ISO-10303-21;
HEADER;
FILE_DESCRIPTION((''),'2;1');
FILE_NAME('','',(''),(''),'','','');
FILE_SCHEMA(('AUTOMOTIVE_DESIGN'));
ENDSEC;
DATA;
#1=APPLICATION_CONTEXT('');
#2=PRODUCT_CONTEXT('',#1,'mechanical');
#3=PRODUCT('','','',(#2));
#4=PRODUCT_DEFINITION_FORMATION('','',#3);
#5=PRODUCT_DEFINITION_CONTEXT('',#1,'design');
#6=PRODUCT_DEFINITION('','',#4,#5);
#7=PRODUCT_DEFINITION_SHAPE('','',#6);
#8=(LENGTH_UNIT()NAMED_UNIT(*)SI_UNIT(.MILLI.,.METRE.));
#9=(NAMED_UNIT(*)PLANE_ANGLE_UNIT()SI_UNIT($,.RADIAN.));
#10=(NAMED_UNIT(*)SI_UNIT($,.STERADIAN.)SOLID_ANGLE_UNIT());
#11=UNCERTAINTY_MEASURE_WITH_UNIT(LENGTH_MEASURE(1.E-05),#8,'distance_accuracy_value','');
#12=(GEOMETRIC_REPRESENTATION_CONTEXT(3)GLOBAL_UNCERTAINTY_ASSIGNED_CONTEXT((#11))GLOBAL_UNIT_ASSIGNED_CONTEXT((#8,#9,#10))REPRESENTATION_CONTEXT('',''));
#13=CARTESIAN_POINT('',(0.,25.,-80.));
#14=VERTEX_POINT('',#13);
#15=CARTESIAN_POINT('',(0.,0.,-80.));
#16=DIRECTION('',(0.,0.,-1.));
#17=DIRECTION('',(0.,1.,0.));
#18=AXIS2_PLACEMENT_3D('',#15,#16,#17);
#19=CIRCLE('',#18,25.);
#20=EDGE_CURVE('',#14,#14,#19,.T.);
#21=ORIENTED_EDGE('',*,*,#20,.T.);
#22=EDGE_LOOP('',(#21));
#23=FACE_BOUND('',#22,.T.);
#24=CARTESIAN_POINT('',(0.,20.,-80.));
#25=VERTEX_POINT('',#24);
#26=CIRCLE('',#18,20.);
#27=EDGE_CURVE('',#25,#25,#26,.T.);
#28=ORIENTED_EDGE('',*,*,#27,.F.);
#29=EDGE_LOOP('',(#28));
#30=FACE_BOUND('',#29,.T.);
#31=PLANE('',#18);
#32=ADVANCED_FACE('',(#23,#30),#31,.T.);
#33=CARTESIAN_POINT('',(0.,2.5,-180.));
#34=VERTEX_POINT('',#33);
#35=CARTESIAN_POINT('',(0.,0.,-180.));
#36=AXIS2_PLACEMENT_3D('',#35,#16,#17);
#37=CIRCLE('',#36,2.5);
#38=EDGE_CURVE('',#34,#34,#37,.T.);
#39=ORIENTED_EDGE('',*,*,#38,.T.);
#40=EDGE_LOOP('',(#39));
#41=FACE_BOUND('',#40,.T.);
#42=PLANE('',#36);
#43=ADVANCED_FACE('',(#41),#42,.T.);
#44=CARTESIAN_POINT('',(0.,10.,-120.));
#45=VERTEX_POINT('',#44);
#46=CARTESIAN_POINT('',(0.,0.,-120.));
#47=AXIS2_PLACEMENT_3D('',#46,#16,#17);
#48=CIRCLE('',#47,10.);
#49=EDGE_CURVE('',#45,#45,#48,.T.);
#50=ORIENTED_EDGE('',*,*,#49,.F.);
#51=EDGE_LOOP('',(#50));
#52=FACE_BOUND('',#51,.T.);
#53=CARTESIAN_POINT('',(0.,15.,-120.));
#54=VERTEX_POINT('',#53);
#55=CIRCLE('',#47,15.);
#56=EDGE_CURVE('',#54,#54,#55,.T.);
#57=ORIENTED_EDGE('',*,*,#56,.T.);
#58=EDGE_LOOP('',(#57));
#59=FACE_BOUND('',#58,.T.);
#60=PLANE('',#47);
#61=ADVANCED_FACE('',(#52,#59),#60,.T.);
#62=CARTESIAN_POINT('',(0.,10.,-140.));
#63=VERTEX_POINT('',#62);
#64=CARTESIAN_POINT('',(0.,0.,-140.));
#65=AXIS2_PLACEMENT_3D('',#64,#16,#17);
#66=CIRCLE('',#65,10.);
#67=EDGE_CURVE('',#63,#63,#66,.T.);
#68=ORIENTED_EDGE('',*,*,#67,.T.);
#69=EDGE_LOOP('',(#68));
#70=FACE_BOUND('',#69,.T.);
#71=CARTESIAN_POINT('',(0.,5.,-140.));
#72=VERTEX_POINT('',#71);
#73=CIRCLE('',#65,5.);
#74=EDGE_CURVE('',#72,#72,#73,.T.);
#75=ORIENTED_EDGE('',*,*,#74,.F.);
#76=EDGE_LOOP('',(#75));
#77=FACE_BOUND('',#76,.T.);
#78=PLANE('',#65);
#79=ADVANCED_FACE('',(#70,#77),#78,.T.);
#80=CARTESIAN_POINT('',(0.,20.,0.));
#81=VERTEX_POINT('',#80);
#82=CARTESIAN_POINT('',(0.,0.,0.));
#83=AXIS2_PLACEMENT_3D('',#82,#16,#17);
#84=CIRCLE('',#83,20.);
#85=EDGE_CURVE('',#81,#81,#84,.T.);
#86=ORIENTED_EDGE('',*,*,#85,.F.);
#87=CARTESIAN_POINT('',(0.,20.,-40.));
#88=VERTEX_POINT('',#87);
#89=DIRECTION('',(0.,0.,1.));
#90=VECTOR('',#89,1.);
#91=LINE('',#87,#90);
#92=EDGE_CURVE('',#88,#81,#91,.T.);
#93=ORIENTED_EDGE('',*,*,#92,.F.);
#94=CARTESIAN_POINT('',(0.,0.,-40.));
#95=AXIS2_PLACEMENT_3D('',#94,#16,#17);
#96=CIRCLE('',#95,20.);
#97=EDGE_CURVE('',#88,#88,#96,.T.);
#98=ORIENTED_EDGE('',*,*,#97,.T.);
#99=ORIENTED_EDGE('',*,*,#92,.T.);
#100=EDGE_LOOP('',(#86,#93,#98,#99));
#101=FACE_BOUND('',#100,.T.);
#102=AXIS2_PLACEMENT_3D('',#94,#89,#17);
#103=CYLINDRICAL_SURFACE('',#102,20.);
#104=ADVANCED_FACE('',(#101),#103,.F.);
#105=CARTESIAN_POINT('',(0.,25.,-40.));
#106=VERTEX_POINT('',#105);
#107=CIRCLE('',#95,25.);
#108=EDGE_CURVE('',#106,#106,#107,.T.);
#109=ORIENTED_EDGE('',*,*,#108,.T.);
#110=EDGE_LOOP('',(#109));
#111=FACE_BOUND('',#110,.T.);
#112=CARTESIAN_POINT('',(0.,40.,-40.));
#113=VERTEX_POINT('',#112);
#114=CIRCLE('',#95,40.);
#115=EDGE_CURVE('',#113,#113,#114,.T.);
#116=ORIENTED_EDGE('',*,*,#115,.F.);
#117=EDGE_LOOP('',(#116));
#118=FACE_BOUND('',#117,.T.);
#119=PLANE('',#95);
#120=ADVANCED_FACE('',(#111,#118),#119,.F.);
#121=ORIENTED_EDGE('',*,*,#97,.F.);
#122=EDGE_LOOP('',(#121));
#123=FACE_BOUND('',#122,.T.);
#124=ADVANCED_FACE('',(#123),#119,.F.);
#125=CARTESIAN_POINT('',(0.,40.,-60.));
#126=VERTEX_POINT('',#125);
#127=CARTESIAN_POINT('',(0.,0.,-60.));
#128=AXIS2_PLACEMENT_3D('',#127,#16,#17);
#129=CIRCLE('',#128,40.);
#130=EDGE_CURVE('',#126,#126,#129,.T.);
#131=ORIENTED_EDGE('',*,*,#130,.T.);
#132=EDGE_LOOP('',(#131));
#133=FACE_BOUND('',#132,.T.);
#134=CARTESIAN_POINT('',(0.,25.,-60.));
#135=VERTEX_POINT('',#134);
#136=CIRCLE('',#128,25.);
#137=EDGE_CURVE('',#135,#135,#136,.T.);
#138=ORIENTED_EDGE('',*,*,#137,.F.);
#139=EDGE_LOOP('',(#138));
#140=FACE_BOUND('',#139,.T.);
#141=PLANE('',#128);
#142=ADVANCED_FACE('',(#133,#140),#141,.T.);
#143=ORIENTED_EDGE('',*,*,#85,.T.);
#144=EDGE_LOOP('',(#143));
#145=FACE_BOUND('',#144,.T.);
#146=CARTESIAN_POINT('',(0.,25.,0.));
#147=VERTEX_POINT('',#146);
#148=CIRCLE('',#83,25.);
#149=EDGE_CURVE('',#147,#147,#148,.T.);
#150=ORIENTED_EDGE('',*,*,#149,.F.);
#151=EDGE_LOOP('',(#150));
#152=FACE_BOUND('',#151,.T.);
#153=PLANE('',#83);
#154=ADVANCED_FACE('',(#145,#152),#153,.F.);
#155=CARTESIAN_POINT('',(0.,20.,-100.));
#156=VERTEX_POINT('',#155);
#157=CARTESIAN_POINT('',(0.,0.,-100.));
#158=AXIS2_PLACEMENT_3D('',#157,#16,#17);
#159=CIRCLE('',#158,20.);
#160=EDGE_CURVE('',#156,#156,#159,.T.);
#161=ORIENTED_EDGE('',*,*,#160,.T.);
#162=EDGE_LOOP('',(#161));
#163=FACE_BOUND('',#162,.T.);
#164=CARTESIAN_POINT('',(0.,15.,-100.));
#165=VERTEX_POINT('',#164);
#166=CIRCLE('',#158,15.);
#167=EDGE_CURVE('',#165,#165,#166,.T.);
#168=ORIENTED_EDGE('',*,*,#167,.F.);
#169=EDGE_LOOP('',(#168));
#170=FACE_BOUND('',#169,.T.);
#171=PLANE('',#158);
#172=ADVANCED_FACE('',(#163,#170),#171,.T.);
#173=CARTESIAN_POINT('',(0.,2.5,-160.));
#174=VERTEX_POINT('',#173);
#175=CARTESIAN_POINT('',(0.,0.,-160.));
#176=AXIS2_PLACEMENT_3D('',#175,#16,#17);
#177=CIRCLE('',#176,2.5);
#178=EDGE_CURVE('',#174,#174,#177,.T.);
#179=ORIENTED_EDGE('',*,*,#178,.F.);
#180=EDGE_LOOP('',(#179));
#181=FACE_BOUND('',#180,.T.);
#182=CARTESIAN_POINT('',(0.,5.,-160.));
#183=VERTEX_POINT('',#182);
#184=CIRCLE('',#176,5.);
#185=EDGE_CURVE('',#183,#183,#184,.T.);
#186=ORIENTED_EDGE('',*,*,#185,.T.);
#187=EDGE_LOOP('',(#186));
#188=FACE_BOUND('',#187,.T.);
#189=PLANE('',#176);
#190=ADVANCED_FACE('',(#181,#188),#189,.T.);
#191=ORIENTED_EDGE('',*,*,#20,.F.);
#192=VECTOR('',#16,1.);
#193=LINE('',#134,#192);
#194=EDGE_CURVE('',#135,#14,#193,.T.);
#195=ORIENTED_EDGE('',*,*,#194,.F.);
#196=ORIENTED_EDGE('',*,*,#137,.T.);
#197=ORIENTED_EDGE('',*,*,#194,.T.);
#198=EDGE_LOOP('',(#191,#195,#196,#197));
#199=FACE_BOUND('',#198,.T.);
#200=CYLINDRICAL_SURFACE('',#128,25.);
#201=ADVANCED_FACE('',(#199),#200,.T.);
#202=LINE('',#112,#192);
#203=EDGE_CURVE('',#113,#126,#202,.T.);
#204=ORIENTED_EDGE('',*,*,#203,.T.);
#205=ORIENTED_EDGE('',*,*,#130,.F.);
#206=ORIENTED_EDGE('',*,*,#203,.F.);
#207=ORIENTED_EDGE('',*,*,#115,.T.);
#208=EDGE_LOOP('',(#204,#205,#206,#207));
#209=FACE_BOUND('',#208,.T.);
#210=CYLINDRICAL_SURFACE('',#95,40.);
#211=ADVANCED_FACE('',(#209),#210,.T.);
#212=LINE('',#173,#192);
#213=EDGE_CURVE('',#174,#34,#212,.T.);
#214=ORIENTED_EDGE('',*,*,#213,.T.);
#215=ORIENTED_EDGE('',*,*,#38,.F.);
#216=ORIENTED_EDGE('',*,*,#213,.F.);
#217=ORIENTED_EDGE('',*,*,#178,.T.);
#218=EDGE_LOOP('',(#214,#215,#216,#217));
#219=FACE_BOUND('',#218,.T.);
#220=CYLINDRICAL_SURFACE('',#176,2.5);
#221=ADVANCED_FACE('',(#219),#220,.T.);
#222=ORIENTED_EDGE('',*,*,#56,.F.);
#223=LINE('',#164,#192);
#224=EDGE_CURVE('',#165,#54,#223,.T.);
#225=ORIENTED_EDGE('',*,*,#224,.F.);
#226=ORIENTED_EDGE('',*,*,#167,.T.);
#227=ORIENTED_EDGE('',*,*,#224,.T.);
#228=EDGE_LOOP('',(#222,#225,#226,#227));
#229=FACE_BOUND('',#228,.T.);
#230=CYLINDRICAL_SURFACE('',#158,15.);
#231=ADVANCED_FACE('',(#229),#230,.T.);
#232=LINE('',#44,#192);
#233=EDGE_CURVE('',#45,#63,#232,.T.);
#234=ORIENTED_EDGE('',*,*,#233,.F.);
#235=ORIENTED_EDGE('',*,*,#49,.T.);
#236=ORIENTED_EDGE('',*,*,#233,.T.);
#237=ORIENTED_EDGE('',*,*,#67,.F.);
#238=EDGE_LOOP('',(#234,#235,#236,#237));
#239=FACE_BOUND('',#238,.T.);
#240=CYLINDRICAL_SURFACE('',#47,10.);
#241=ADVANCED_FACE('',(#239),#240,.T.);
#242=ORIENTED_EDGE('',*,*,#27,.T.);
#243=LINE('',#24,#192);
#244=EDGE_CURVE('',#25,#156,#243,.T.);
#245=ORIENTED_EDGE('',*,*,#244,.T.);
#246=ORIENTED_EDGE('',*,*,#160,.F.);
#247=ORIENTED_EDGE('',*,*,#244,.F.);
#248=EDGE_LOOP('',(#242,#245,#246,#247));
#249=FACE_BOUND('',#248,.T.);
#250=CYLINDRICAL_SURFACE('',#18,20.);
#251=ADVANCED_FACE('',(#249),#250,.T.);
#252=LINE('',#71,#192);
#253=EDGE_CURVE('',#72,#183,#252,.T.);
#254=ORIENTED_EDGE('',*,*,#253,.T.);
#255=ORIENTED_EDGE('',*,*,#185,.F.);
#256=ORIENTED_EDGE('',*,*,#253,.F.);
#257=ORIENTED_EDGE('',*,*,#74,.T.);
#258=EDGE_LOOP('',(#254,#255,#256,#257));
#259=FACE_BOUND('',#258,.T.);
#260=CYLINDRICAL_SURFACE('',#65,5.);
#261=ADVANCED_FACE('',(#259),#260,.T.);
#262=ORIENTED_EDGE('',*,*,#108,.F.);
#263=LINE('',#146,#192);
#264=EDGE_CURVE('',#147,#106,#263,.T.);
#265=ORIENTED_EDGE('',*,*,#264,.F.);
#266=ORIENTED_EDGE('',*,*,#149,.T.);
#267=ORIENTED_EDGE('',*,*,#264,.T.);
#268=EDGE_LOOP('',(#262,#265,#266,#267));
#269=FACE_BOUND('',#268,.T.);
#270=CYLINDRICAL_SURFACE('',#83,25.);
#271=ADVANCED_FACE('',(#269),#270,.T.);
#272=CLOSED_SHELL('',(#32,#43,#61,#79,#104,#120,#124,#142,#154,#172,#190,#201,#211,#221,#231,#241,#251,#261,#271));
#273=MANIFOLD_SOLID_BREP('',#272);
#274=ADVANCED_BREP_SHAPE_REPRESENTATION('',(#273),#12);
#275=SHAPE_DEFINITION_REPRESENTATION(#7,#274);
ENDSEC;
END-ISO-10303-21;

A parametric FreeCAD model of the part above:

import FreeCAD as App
import Part
import Sketcher


def add_polygon(sketch, points):
    """Adds a closed chain of lines whose ends are joined by coincident constraints."""
    first, n = sketch.GeometryCount, len(points)
    for a, b in zip(points, points[1:] + points[:1]):
        sketch.addGeometry(Part.LineSegment(App.Vector(*a, 0), App.Vector(*b, 0)), False)
    for i in range(n):
        sketch.addConstraint(Sketcher.Constraint("Coincident", first + i, 2, first + (i + 1) % n, 1))

doc = App.newDocument("Part")
body = doc.addObject("PartDesign::Body", "Body")

sketch1 = doc.addObject("Sketcher::SketchObject", "Sketch")
body.addObject(sketch1)
sketch1.AttachmentSupport = (doc.YZ_Plane, [""])
sketch1.MapMode = "FlatFace"
add_polygon(sketch1, [(25, -40), (25, 0), (20, 0), (20, -40), (0, -40), (0, -180), (2.5, -180), (2.5, -160), (5, -160), (5, -140), (10, -140), (10, -120), (15, -120), (15, -100), (20, -100), (20, -80), (25, -80), (25, -60), (40, -60), (40, -40)])
sketch1.addConstraint(Sketcher.Constraint("Vertical", 0))
sketch1.addConstraint(Sketcher.Constraint("Horizontal", 1))
sketch1.addConstraint(Sketcher.Constraint("Vertical", 2))
sketch1.addConstraint(Sketcher.Constraint("Horizontal", 3))
sketch1.addConstraint(Sketcher.Constraint("Vertical", 4))
sketch1.addConstraint(Sketcher.Constraint("Horizontal", 5))
sketch1.addConstraint(Sketcher.Constraint("Vertical", 6))
sketch1.addConstraint(Sketcher.Constraint("Horizontal", 7))
sketch1.addConstraint(Sketcher.Constraint("Vertical", 8))
sketch1.addConstraint(Sketcher.Constraint("Horizontal", 9))
sketch1.addConstraint(Sketcher.Constraint("Vertical", 10))
sketch1.addConstraint(Sketcher.Constraint("Horizontal", 11))
sketch1.addConstraint(Sketcher.Constraint("Vertical", 12))
sketch1.addConstraint(Sketcher.Constraint("Horizontal", 13))
sketch1.addConstraint(Sketcher.Constraint("Vertical", 14))
sketch1.addConstraint(Sketcher.Constraint("Horizontal", 15))
sketch1.addConstraint(Sketcher.Constraint("Vertical", 16))
sketch1.addConstraint(Sketcher.Constraint("Horizontal", 17))
sketch1.addConstraint(Sketcher.Constraint("Vertical", 18))
sketch1.addConstraint(Sketcher.Constraint("Horizontal", 19))
sketch1.addConstraint(Sketcher.Constraint("PointOnObject", 0, 2, -1))
sketch1.addConstraint(Sketcher.Constraint("PointOnObject", 3, 2, -2))
sketch1.addConstraint(Sketcher.Constraint("Horizontal", 3, 2, 18, 2))
sketch1.addConstraint(Sketcher.Constraint("Vertical", 2, 2, 13, 2))
sketch1.addConstraint(Sketcher.Constraint("Vertical", 0, 2, 15, 2))
sketch1.addConstraint(Sketcher.Constraint("Equal", 5, 7))
sketch1.addConstraint(Sketcher.Constraint("Equal", 1, 9))
sketch1.addConstraint(Sketcher.Constraint("Equal", 9, 11))
sketch1.addConstraint(Sketcher.Constraint("Equal", 11, 13))
sketch1.addConstraint(Sketcher.Constraint("Equal", 3, 6))
sketch1.addConstraint(Sketcher.Constraint("Equal", 6, 8))
sketch1.addConstraint(Sketcher.Constraint("Equal", 8, 10))
sketch1.addConstraint(Sketcher.Constraint("Equal", 10, 12))
sketch1.addConstraint(Sketcher.Constraint("Equal", 12, 14))
sketch1.addConstraint(Sketcher.Constraint("Equal", 14, 16))
sketch1.addConstraint(Sketcher.Constraint("Equal", 16, 18))
sketch1.addConstraint(Sketcher.Constraint("DistanceX", 1, 2, 1, 1, 5.0))
sketch1.addConstraint(Sketcher.Constraint("DistanceX", 3, 2, 3, 1, 20.0))
sketch1.addConstraint(Sketcher.Constraint("DistanceX", 17, 1, 17, 2, 15.0))
sketch1.addConstraint(Sketcher.Constraint("DistanceY", 0, 1, 0, 2, 40.0))
revolution = doc.addObject("PartDesign::Revolution", "Revolution")
body.addObject(revolution)
revolution.Profile = sketch1
revolution.ReferenceAxis = (sketch1, ["V_Axis"])
revolution.Angle = 360

doc.recompute()
